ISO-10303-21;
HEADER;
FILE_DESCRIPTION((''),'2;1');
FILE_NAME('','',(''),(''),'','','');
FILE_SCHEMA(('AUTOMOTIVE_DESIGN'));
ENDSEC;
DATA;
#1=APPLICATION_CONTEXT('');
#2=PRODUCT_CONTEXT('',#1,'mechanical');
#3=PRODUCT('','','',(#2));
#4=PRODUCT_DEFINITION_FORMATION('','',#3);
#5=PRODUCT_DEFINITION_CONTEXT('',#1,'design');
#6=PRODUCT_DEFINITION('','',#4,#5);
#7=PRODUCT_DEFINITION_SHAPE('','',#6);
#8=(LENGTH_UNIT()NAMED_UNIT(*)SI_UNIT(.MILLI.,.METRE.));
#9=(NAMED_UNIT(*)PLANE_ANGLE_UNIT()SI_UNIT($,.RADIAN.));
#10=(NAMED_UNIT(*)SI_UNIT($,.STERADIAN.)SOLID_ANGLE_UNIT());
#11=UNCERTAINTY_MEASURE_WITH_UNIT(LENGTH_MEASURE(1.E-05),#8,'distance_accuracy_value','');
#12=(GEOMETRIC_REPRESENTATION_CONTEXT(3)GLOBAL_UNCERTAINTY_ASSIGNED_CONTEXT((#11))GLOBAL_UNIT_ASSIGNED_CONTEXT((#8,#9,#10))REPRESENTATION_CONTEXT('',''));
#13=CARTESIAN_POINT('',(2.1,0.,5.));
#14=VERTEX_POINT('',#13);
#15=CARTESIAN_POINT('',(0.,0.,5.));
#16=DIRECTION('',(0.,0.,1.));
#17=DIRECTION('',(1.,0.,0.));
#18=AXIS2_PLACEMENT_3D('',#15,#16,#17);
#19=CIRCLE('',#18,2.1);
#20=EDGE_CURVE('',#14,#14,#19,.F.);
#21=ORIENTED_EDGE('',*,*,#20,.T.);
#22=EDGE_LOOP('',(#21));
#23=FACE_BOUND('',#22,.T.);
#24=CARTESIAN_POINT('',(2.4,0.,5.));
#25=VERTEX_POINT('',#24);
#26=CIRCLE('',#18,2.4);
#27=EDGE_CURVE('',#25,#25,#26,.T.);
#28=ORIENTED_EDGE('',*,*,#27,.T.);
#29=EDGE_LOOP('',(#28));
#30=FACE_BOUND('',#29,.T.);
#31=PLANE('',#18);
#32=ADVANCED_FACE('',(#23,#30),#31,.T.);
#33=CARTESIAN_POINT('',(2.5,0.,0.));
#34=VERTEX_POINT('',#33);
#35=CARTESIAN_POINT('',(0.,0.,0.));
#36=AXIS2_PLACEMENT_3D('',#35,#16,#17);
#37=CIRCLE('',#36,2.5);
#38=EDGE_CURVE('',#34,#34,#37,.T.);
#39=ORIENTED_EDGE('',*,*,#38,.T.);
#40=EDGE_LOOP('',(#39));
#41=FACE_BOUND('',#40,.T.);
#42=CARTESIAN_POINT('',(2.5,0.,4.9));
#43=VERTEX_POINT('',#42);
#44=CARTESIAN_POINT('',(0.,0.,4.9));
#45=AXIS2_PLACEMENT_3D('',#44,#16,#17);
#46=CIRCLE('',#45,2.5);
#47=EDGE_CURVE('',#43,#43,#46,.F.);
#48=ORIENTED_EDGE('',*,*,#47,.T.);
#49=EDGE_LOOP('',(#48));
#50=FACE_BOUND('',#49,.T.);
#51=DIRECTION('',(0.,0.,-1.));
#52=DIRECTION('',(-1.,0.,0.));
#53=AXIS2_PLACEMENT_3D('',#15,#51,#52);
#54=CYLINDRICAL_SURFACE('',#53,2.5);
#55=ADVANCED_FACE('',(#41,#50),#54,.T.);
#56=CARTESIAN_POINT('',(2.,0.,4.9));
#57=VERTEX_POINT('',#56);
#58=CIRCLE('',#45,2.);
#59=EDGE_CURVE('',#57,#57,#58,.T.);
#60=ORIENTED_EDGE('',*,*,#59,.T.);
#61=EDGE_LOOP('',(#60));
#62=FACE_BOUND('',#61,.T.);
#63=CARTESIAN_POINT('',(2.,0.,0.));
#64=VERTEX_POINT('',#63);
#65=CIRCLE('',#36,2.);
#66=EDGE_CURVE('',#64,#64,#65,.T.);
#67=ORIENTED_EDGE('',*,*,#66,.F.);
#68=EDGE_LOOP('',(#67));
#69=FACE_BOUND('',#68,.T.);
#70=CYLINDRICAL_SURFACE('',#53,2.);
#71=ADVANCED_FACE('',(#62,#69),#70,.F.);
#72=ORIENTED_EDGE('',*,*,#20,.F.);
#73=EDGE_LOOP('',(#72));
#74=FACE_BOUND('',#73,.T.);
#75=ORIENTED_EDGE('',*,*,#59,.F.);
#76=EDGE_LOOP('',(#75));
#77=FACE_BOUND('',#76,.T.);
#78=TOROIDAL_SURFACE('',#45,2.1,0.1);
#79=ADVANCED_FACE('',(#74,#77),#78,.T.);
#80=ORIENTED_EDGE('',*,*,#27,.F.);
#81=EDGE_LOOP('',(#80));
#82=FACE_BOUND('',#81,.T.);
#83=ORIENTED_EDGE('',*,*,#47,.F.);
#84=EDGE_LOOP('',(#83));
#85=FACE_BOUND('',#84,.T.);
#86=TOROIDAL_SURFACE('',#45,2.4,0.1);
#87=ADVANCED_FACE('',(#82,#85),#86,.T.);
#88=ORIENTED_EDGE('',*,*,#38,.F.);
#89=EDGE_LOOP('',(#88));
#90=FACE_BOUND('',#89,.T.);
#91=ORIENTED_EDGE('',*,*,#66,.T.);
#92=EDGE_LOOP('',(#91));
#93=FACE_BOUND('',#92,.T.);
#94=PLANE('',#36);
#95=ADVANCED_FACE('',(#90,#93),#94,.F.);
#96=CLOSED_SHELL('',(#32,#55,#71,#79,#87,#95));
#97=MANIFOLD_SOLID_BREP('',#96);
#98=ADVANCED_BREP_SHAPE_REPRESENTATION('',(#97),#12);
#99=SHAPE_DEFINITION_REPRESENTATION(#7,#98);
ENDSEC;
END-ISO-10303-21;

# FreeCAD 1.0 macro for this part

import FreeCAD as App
import Part
import Sketcher
from FreeCAD import Vector
Q = App.Units.Quantity


def edges_at(feature, points):
    """Names of the edges that pass closest to the given points."""
    edges = feature.Shape.Edges
    near = lambda p: min(range(len(edges)), key=lambda i: edges[i].distToShape(Part.Vertex(*p))[0])
    return sorted({f"Edge{near(p) + 1}" for p in points})

doc = App.newDocument("Part")
body = doc.addObject("PartDesign::Body", "Body")

# Sketch on XY plane
sketch1 = body.newObject("Sketcher::SketchObject", "Sketch")
sketch1.AttachmentSupport = (doc.getObject("XY_Plane"), [""])
sketch1.MapMode = "FlatFace"
sketch1.addGeometry(Part.Circle(Vector(0, 0, 0), Vector(0, 0, 1), 2.5), False)
sketch1.addGeometry(Part.Circle(Vector(0, 0, 0), Vector(0, 0, 1), 2), False)
sketch1.addConstraint(Sketcher.Constraint("Coincident", 0, 3, -1, 1))
sketch1.addConstraint(Sketcher.Constraint("Coincident", 1, 3, -1, 1))
sketch1.addConstraint(Sketcher.Constraint("Diameter", 0, Q("5 mm")))
sketch1.addConstraint(Sketcher.Constraint("Diameter", 1, Q("4 mm")))
pad1 = body.newObject("PartDesign::Pad", "Pad")
pad1.Profile = sketch1
pad1.Length = 5
doc.recompute()

fillet = body.newObject("PartDesign::Fillet", "Fillet")
fillet.Base = (pad1, edges_at(pad1, [(-2.5, 0, 5), (-2, 0, 5)]))
fillet.Radius = 0.1

doc.recompute()
